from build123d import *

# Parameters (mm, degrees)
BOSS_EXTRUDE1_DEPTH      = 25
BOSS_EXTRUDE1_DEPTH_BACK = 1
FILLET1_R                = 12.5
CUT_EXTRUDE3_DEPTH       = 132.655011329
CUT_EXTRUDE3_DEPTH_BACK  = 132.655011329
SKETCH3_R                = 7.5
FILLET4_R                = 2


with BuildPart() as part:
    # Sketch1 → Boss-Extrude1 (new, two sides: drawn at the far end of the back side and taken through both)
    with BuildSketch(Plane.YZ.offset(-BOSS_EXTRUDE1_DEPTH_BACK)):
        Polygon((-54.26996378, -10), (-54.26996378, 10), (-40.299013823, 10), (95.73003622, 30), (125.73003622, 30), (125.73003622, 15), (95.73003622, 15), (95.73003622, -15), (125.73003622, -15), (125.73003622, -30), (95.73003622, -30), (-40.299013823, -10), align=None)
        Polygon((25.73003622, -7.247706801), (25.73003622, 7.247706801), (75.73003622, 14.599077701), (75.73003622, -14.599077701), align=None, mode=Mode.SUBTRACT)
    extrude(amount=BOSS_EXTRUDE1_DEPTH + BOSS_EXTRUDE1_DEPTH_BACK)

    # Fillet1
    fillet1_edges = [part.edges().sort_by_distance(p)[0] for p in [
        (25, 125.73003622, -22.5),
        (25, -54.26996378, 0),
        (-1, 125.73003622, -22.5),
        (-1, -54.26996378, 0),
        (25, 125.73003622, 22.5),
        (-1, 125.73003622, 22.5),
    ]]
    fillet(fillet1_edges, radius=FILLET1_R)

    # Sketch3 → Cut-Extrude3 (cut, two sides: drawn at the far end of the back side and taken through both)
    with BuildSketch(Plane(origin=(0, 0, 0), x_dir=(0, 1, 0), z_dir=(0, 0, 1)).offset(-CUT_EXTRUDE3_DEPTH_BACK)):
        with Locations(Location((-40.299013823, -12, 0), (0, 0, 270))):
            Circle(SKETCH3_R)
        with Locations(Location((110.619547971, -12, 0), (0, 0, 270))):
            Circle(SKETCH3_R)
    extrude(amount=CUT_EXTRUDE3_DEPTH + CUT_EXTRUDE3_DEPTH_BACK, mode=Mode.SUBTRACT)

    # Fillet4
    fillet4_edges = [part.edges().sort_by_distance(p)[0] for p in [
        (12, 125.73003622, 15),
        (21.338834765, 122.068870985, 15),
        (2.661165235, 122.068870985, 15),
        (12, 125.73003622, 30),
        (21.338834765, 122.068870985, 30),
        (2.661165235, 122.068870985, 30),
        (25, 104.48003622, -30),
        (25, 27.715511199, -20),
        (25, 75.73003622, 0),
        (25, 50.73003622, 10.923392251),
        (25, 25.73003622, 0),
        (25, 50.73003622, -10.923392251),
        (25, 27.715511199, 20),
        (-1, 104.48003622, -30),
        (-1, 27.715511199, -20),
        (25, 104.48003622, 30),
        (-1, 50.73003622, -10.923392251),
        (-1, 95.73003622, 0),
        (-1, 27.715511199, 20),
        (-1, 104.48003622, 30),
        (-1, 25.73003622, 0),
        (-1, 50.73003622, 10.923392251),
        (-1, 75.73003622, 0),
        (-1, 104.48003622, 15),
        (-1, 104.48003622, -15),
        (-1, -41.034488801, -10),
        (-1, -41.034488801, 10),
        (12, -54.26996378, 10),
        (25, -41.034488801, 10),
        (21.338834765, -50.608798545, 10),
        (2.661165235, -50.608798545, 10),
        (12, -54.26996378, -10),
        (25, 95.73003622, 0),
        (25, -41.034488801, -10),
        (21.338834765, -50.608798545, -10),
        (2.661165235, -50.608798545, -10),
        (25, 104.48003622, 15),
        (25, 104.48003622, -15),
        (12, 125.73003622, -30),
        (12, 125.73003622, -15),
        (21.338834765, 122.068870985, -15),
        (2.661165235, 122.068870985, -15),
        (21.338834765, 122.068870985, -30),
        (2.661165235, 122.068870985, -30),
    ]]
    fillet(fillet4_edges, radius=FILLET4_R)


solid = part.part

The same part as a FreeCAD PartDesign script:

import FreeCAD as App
import Part
import Sketcher
Q = App.Units.Quantity


def edges_at(feature, points):
    """Names of the edges that pass closest to the given points."""
    edges = feature.Shape.Edges
    near = lambda p: min(range(len(edges)), key=lambda i: edges[i].distToShape(Part.Vertex(*p))[0])
    return sorted({f"Edge{near(p) + 1}" for p in points})


def add_polygon(sketch, points):
    """Adds a closed chain of lines whose ends are joined by coincident constraints."""
    first, n = sketch.GeometryCount, len(points)
    for a, b in zip(points, points[1:] + points[:1]):
        sketch.addGeometry(Part.LineSegment(App.Vector(*a, 0), App.Vector(*b, 0)), False)
    for i in range(n):
        sketch.addConstraint(Sketcher.Constraint("Coincident", first + i, 2, first + (i + 1) % n, 1))

doc = App.newDocument("Part")
params = doc.addObject("Spreadsheet::Sheet", "Params")
for row, (alias, value) in enumerate([
    ("sketch1_width", "30 mm"),
    ("sketch1_height", "20 mm"),
    ("sketch1_height2", "15 mm"),
    ("pad1_length", "25 mm"),
    ("pad1_length2", "1 mm"),
    ("fillet_radius", "12.5 mm"),
    ("sketch2_diameter", "15 mm"),
    ("fillet2_radius", "2 mm"),
], start=1):
    params.set(f"A{row}", alias)
    params.set(f"B{row}", "=" + value)
    params.setAlias(f"B{row}", alias)

body = doc.addObject("PartDesign::Body", "Body")

sketch1 = body.newObject("Sketcher::SketchObject", "Sketch")
sketch1.AttachmentSupport = (doc.getObject("YZ_Plane"), [""])
sketch1.MapMode = "FlatFace"
add_polygon(sketch1, [(-54, 10), (-54, -10), (-40, -10), (96, -30), (126, -30), (126, -15), (96, -15), (96, 15), (126, 15), (126, 30), (96, 30), (-40, 10)])
add_polygon(sketch1, [(26, -7), (26, 7), (76, 15), (76, -15)])
sketch1.addConstraint(Sketcher.Constraint("Vertical", 0))
sketch1.addConstraint(Sketcher.Constraint("Horizontal", 1))
sketch1.addConstraint(Sketcher.Constraint("Horizontal", 3))
sketch1.addConstraint(Sketcher.Constraint("Vertical", 4))
sketch1.addConstraint(Sketcher.Constraint("Horizontal", 5))
sketch1.addConstraint(Sketcher.Constraint("Vertical", 6))
sketch1.addConstraint(Sketcher.Constraint("Horizontal", 7))
sketch1.addConstraint(Sketcher.Constraint("Vertical", 8))
sketch1.addConstraint(Sketcher.Constraint("Horizontal", 9))
sketch1.addConstraint(Sketcher.Constraint("Horizontal", 11))
sketch1.addConstraint(Sketcher.Constraint("Vertical", 12))
sketch1.addConstraint(Sketcher.Constraint("Vertical", 14))
sketch1.addConstraint(Sketcher.Constraint("Symmetric", 4, 2, 7, 2, -1))
sketch1.addConstraint(Sketcher.Constraint("Symmetric", 2, 2, 9, 2, -1))
sketch1.addConstraint(Sketcher.Constraint("Symmetric", 1, 2, 10, 2, -1))
sketch1.addConstraint(Sketcher.Constraint("Parallel", 10, 13))
sketch1.addConstraint(Sketcher.Constraint("Parallel", 2, 15))
sketch1.addConstraint(Sketcher.Constraint("Vertical", 2, 2, 5, 2))
sketch1.addConstraint(Sketcher.Constraint("Equal", 9, 6))
sketch1.addConstraint(Sketcher.Constraint("DistanceX", 3, 1, 3, 2, Q("30 mm")))
sketch1.addConstraint(Sketcher.Constraint("DistanceY", 0, 2, 0, 1, Q("20 mm")))
sketch1.addConstraint(Sketcher.Constraint("DistanceY", 4, 1, 4, 2, Q("15 mm")))
sketch1.addConstraint(Sketcher.Constraint("DistanceX", 0, 2, 2, 2, Q("150 mm")))
sketch1.addConstraint(Sketcher.Constraint("DistanceX", 12, 2, 6, 2, Q("70 mm")))
sketch1.addConstraint(Sketcher.Constraint("DistanceX", 13, 2, 6, 2, Q("20 mm")))
sketch1.addConstraint(Sketcher.Constraint("DistanceX", 1, 1, 1, 2, Q("13.97095 mm")))
sketch1.addConstraint(Sketcher.Constraint("DistanceY", 12, 1, 12, 2, Q("14.495414 mm")))
sketch1.addConstraint(Sketcher.Constraint("DistanceX", 0, 2, -1, 1, Q("54.269964 mm")))
sketch1.addConstraint(Sketcher.Constraint("DistanceY", -1, 1, 12, 2, Q("7.247707 mm")))
sketch1.setExpression("Constraints[35]", "Params.sketch1_width")
sketch1.setExpression("Constraints[36]", "Params.sketch1_height")
sketch1.setExpression("Constraints[37]", "Params.sketch1_height2")
pad1 = body.newObject("PartDesign::Pad", "Pad")
pad1.Profile = sketch1
pad1.Type = "TwoLengths"
pad1.setExpression("Length", "Params.pad1_length")
pad1.setExpression("Length2", "Params.pad1_length2")
doc.recompute()

fillet = body.newObject("PartDesign::Fillet", "Fillet")
fillet.Base = (pad1, edges_at(pad1, [
    (25, 125.73, -22.5),
    (25, -54.27, 0),
    (-1, 125.73, -22.5),
    (-1, -54.27, 0),
    (25, 125.73, 22.5),
    (-1, 125.73, 22.5),
]))
fillet.setExpression("Radius", "Params.fillet_radius")

sketch2 = body.newObject("Sketcher::SketchObject", "Sketch001")
sketch2.AttachmentSupport = (doc.getObject("XY_Plane"), [""])
sketch2.MapMode = "FlatFace"
sketch2.addGeometry(Part.Circle(App.Vector(12, -40, 0), App.Vector(0, 0, 1), 8), False)
sketch2.addGeometry(Part.Circle(App.Vector(12, 111, 0), App.Vector(0, 0, 1), 8), False)
sketch2.addConstraint(Sketcher.Constraint("Equal", 0, 1))
sketch2.addConstraint(Sketcher.Constraint("Vertical", 0, 3, 1, 3))
sketch2.addConstraint(Sketcher.Constraint("Diameter", 0, Q("15 mm")))
sketch2.addConstraint(Sketcher.Constraint("DistanceX", -1, 1, 0, 3, Q("12 mm")))
sketch2.addConstraint(Sketcher.Constraint("DistanceY", 0, 3, 1, 3, Q("150.918562 mm")))
sketch2.addConstraint(Sketcher.Constraint("DistanceY", 0, 3, -1, 1, Q("40.299014 mm")))
sketch2.setExpression("Constraints[2]", "Params.sketch2_diameter")
pocket1 = body.newObject("PartDesign::Pocket", "Pocket")
pocket1.Profile = sketch2
pocket1.Type = "ThroughAll"
pocket1.Midplane = True
doc.recompute()

fillet2 = body.newObject("PartDesign::Fillet", "Fillet001")
fillet2.Base = (pocket1, edges_at(pocket1, [
    (12, 125.73, 15),
    (21.339, 122.069, 15),
    (2.661, 122.069, 15),
    (12, 125.73, 30),
    (21.339, 122.069, 30),
    (2.661, 122.069, 30),
    (25, 104.48, -30),
    (25, 27.716, -20),
    (25, 75.73, 0),
    (25, 50.73, 10.923),
    (25, 25.73, 0),
    (25, 50.73, -10.923),
    (25, 27.716, 20),
    (-1, 104.48, -30),
    (-1, 27.716, -20),
    (25, 104.48, 30),
    (-1, 50.73, -10.923),
    (-1, 95.73, 0),
    (-1, 27.716, 20),
    (-1, 104.48, 30),
    (-1, 25.73, 0),
    (-1, 50.73, 10.923),
    (-1, 75.73, 0),
    (-1, 104.48, 15),
    (-1, 104.48, -15),
    (-1, -41.034, -10),
    (-1, -41.034, 10),
    (12, -54.27, 10),
    (25, -41.034, 10),
    (21.339, -50.609, 10),
    (2.661, -50.609, 10),
    (12, -54.27, -10),
    (25, 95.73, 0),
    (25, -41.034, -10),
    (21.339, -50.609, -10),
    (2.661, -50.609, -10),
    (25, 104.48, 15),
    (25, 104.48, -15),
    (12, 125.73, -30),
    (12, 125.73, -15),
    (21.339, 122.069, -15),
    (2.661, 122.069, -15),
    (21.339, 122.069, -30),
    (2.661, 122.069, -30),
]))
fillet2.setExpression("Radius", "Params.fillet2_radius")

doc.recompute()
